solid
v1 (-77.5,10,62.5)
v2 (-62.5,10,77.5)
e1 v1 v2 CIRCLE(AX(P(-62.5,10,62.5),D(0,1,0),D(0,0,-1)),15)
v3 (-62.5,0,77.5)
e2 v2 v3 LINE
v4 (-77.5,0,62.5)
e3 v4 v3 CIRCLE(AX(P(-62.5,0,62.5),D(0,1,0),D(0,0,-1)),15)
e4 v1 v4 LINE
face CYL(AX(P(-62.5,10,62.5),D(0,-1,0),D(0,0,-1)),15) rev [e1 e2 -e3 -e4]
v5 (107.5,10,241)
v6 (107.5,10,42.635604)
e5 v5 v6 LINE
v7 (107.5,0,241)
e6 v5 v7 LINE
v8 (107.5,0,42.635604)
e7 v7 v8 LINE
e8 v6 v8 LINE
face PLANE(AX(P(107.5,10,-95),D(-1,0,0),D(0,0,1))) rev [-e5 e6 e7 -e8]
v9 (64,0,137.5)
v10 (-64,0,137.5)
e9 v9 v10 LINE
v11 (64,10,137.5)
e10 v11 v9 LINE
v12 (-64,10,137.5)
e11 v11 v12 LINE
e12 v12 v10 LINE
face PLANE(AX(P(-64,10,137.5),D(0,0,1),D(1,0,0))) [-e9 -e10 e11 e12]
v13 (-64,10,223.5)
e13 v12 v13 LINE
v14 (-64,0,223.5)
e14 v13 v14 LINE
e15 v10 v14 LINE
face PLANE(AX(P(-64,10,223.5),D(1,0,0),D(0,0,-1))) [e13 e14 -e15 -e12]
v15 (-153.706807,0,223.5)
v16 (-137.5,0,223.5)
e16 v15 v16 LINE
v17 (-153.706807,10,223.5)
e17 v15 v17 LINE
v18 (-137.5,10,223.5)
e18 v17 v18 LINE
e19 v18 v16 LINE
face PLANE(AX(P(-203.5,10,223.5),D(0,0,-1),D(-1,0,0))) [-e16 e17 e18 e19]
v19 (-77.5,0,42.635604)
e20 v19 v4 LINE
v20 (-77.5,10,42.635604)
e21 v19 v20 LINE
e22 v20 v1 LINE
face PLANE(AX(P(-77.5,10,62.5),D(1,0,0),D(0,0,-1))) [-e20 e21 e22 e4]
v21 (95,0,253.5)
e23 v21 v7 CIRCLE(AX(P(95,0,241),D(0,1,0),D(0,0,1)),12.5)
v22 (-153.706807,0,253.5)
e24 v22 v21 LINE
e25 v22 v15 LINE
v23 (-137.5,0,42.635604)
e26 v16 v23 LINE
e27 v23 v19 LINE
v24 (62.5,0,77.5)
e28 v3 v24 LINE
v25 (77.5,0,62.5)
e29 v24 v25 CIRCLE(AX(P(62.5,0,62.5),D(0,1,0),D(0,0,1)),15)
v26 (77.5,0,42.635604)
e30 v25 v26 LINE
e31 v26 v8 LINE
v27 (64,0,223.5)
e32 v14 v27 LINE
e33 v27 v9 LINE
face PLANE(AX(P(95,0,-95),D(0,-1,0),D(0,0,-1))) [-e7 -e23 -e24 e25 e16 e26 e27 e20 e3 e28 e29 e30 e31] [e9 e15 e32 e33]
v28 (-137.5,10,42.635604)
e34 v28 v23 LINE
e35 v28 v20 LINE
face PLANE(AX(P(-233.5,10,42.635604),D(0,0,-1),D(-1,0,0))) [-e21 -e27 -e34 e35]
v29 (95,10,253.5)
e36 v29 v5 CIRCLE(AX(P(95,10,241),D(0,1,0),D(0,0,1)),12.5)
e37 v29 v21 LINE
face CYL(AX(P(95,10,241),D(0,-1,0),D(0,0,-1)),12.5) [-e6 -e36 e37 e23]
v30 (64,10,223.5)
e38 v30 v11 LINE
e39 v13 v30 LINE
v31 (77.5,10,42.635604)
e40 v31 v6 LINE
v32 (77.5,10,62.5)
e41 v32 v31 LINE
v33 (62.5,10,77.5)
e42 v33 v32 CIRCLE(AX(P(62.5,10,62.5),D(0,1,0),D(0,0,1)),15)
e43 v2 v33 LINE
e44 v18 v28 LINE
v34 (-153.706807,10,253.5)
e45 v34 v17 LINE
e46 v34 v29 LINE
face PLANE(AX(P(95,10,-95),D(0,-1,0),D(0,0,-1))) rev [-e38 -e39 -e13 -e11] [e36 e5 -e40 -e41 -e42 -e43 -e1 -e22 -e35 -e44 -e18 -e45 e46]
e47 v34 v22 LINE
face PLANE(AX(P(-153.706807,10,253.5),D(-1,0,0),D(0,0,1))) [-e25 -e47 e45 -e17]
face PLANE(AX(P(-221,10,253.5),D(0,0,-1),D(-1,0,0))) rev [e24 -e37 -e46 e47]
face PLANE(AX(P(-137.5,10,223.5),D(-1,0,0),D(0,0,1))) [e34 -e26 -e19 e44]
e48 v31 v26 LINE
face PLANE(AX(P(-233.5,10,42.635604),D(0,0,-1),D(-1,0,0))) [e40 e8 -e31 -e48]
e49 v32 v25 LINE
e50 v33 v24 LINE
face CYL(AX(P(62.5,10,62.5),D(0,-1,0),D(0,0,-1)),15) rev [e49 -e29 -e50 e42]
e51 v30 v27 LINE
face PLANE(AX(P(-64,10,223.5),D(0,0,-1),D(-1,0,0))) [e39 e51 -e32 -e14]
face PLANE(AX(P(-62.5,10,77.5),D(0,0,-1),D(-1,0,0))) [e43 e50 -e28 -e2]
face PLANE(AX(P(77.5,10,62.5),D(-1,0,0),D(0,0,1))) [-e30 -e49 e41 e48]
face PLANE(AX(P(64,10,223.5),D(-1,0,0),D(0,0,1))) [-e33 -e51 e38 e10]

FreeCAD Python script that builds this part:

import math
import FreeCAD as App
import Part
import Sketcher

V = App.Vector

doc = App.newDocument("Part")
body = doc.addObject("PartDesign::Body", "Body")

sketch1 = doc.addObject("Sketcher::SketchObject", "Sketch")
body.addObject(sketch1)
sketch1.AttachmentSupport = (doc.XZ_Plane, [""])
sketch1.MapMode = "FlatFace"
sketch1.addGeometry([
    Part.LineSegment(V(95, -108, 0), V(-221, -108, 0)),
    Part.ArcOfCircle(Part.Circle(V(-221, -95, 0), V(0, 0, 1), 12), math.radians(180), math.radians(270)),
    Part.LineSegment(V(-234, -95, 0), V(-234, 241, 0)),
    Part.ArcOfCircle(Part.Circle(V(-221, 241, 0), V(0, 0, 1), 12), math.radians(90), math.radians(180)),
    Part.LineSegment(V(-221, 254, 0), V(95, 254, 0)),
    Part.ArcOfCircle(Part.Circle(V(95, 241, 0), V(0, 0, 1), 12), math.radians(0), math.radians(90)),
    Part.LineSegment(V(108, 241, 0), V(108, -95, 0)),
    Part.ArcOfCircle(Part.Circle(V(95, -95, 0), V(0, 0, 1), 12), math.radians(-90), math.radians(0)),
], False)
sketch1.addConstraint([
    Sketcher.Constraint("Tangent", 0, 2, 1, 2),
    Sketcher.Constraint("Tangent", 1, 1, 2, 1),
    Sketcher.Constraint("Tangent", 2, 2, 3, 2),
    Sketcher.Constraint("Tangent", 3, 1, 4, 1),
    Sketcher.Constraint("Tangent", 4, 2, 5, 2),
    Sketcher.Constraint("Tangent", 5, 1, 6, 1),
    Sketcher.Constraint("Tangent", 6, 2, 7, 2),
    Sketcher.Constraint("Tangent", 7, 1, 0, 1),
    Sketcher.Constraint("Horizontal", 0),
    Sketcher.Constraint("Vertical", 2),
    Sketcher.Constraint("Horizontal", 4),
    Sketcher.Constraint("Vertical", 6),
    Sketcher.Constraint("Equal", 1, 3),
    Sketcher.Constraint("Equal", 3, 5),
    Sketcher.Constraint("Equal", 5, 7),
    Sketcher.Constraint("Radius", 1, 12.5),
    Sketcher.Constraint("DistanceX", 0, 2, 0, 1, 316.0),
    Sketcher.Constraint("DistanceY", 2, 1, 2, 2, 336.0),
    Sketcher.Constraint("DistanceX", 1, 3, -1, 1, 221.0),
    Sketcher.Constraint("DistanceY", 1, 3, -1, 1, 95.0),
])
pad1 = doc.addObject("PartDesign::Pad", "Pad")
body.addObject(pad1)
pad1.Profile = sketch1
pad1.Length = 10
pad1.Reversed = True

sketch2 = doc.addObject("Sketcher::SketchObject", "Sketch001")
body.addObject(sketch2)
sketch2.AttachmentSupport = (doc.XZ_Plane, [""])
sketch2.MapMode = "FlatFace"
sketch2.addGeometry([
    Part.LineSegment(V(-64, 138, 0), V(-64, 224, 0)),
    Part.LineSegment(V(-64, 224, 0), V(64, 224, 0)),
    Part.LineSegment(V(64, 224, 0), V(64, 138, 0)),
    Part.LineSegment(V(64, 138, 0), V(-64, 138, 0)),
    Part.LineSegment(V(-204, 12, 0), V(-204, 224, 0)),
    Part.LineSegment(V(-204, 224, 0), V(-138, 224, 0)),
    Part.LineSegment(V(-138, 224, 0), V(-138, 12, 0)),
    Part.LineSegment(V(-138, 12, 0), V(-204, 12, 0)),
], False)
sketch2.addConstraint([
    Sketcher.Constraint("Coincident", 0, 2, 1, 1),
    Sketcher.Constraint("Coincident", 1, 2, 2, 1),
    Sketcher.Constraint("Coincident", 2, 2, 3, 1),
    Sketcher.Constraint("Coincident", 3, 2, 0, 1),
    Sketcher.Constraint("Coincident", 4, 2, 5, 1),
    Sketcher.Constraint("Coincident", 5, 2, 6, 1),
    Sketcher.Constraint("Coincident", 6, 2, 7, 1),
    Sketcher.Constraint("Coincident", 7, 2, 4, 1),
    Sketcher.Constraint("Vertical", 0),
    Sketcher.Constraint("Horizontal", 1),
    Sketcher.Constraint("Vertical", 2),
    Sketcher.Constraint("Horizontal", 3),
    Sketcher.Constraint("Vertical", 4),
    Sketcher.Constraint("Horizontal", 5),
    Sketcher.Constraint("Vertical", 6),
    Sketcher.Constraint("Horizontal", 7),
    Sketcher.Constraint("Horizontal", 1, 2, 4, 2),
    Sketcher.Constraint("DistanceX", 1, 1, 1, 2, 128.0),
    Sketcher.Constraint("DistanceX", 5, 1, 5, 2, 66.0),
    Sketcher.Constraint("DistanceY", 0, 1, 0, 2, 86.0),
    Sketcher.Constraint("DistanceY", 4, 1, 4, 2, 212.0),
    Sketcher.Constraint("DistanceX", 0, 2, -1, 1, 64.0),
    Sketcher.Constraint("DistanceY", -1, 1, 0, 2, 223.5),
    Sketcher.Constraint("DistanceX", 4, 2, -1, 1, 203.5),
])
pocket1 = doc.addObject("PartDesign::Pocket", "Pocket")
body.addObject(pocket1)
pocket1.Profile = sketch2
pocket1.Type = "ThroughAll"

sketch3 = doc.addObject("Sketcher::SketchObject", "Sketch002")
body.addObject(sketch3)
sketch3.AttachmentSupport = (doc.XZ_Plane, [""])
sketch3.MapMode = "FlatFace"
sketch3.addGeometry([
    Part.LineSegment(V(-62, 78, 0), V(62, 78, 0)),
    Part.ArcOfCircle(Part.Circle(V(63, 63, 0), V(0, 0, 1), 15), math.radians(0), math.radians(90)),
    Part.LineSegment(V(78, 62, 0), V(78, -62, 0)),
    Part.ArcOfCircle(Part.Circle(V(63, -63, 0), V(0, 0, 1), 15), math.radians(-90), math.radians(0)),
    Part.LineSegment(V(62, -78, 0), V(-62, -78, 0)),
    Part.ArcOfCircle(Part.Circle(V(-63, -63, 0), V(0, 0, 1), 15), math.radians(180), math.radians(270)),
    Part.LineSegment(V(-78, -62, 0), V(-78, 62, 0)),
    Part.ArcOfCircle(Part.Circle(V(-63, 63, 0), V(0, 0, 1), 15), math.radians(90), math.radians(180)),
], False)
sketch3.addConstraint([
    Sketcher.Constraint("Tangent", 0, 2, 1, 2),
    Sketcher.Constraint("Tangent", 1, 1, 2, 1),
    Sketcher.Constraint("Tangent", 2, 2, 3, 2),
    Sketcher.Constraint("Tangent", 3, 1, 4, 1),
    Sketcher.Constraint("Tangent", 4, 2, 5, 2),
    Sketcher.Constraint("Tangent", 5, 1, 6, 1),
    Sketcher.Constraint("Tangent", 6, 2, 7, 2),
    Sketcher.Constraint("Tangent", 7, 1, 0, 1),
    Sketcher.Constraint("Horizontal", 0),
    Sketcher.Constraint("Vertical", 2),
    Sketcher.Constraint("Horizontal", 4),
    Sketcher.Constraint("Vertical", 6),
    Sketcher.Constraint("Equal", 1, 3),
    Sketcher.Constraint("Equal", 3, 5),
    Sketcher.Constraint("Equal", 5, 7),
    Sketcher.Constraint("Symmetric", 1, 3, 5, 3, -1, 1),
    Sketcher.Constraint("Equal", 4, 2),
    Sketcher.Constraint("Radius", 1, 15.0),
    Sketcher.Constraint("DistanceX", 0, 1, 0, 2, 125.0),
])
pocket2 = doc.addObject("PartDesign::Pocket", "Pocket001")
body.addObject(pocket2)
pocket2.Profile = sketch3
pocket2.Type = "ThroughAll"

sketch4 = doc.addObject("Sketcher::SketchObject", "Sketch003")
body.addObject(sketch4)
sketch4.AttachmentSupport = (doc.XZ_Plane, [""])
sketch4.MapMode = "FlatFace"
sketch4.addGeometry([
    Part.LineSegment(V(-234, -116, 0), V(-234, 43, 0)),
    Part.LineSegment(V(-234, 43, 0), V(110, 43, 0)),
    Part.LineSegment(V(110, 43, 0), V(110, -116, 0)),
    Part.LineSegment(V(110, -116, 0), V(-234, -116, 0)),
], False)
sketch4.addConstraint([
    Sketcher.Constraint("Coincident", 0, 2, 1, 1),
    Sketcher.Constraint("Coincident", 1, 2, 2, 1),
    Sketcher.Constraint("Coincident", 2, 2, 3, 1),
    Sketcher.Constraint("Coincident", 3, 2, 0, 1),
    Sketcher.Constraint("Vertical", 0),
    Sketcher.Constraint("Horizontal", 1),
    Sketcher.Constraint("Vertical", 2),
    Sketcher.Constraint("Horizontal", 3),
    Sketcher.Constraint("DistanceX", 1, 1, 1, 2, 343.5),
    Sketcher.Constraint("DistanceX", -1, 1, 1, 2, 110.0),
    Sketcher.Constraint("DistanceY", 0, 1, 0, 2, 159.021788),
    Sketcher.Constraint("DistanceY", -1, 1, 0, 2, 42.635604),
])
pocket3 = doc.addObject("PartDesign::Pocket", "Pocket002")
body.addObject(pocket3)
pocket3.Profile = sketch4
pocket3.Type = "ThroughAll"

sketch5 = doc.addObject("Sketcher::SketchObject", "Sketch004")
body.addObject(sketch5)
sketch5.AttachmentSupport = (doc.XZ_Plane, [""])
sketch5.MapMode = "FlatFace"
sketch5.addGeometry([
    Part.LineSegment(V(-241, 29, 0), V(-241, 254, 0)),
    Part.LineSegment(V(-241, 254, 0), V(-154, 254, 0)),
    Part.LineSegment(V(-154, 254, 0), V(-154, 29, 0)),
    Part.LineSegment(V(-154, 29, 0), V(-241, 29, 0)),
], False)
sketch5.addConstraint([
    Sketcher.Constraint("Coincident", 0, 2, 1, 1),
    Sketcher.Constraint("Coincident", 1, 2, 2, 1),
    Sketcher.Constraint("Coincident", 2, 2, 3, 1),
    Sketcher.Constraint("Coincident", 3, 2, 0, 1),
    Sketcher.Constraint("Vertical", 0),
    Sketcher.Constraint("Horizontal", 1),
    Sketcher.Constraint("Vertical", 2),
    Sketcher.Constraint("Horizontal", 3),
    Sketcher.Constraint("DistanceY", -1, 1, 0, 2, 253.5),
    Sketcher.Constraint("DistanceX", 1, 1, 1, 2, 86.895597),
    Sketcher.Constraint("DistanceY", 0, 1, 0, 2, 224.425886),
    Sketcher.Constraint("DistanceX", 0, 2, -1, 1, 240.602404),
])
pocket4 = doc.addObject("PartDesign::Pocket", "Pocket003")
body.addObject(pocket4)
pocket4.Profile = sketch5
pocket4.Type = "ThroughAll"

doc.recompute()
